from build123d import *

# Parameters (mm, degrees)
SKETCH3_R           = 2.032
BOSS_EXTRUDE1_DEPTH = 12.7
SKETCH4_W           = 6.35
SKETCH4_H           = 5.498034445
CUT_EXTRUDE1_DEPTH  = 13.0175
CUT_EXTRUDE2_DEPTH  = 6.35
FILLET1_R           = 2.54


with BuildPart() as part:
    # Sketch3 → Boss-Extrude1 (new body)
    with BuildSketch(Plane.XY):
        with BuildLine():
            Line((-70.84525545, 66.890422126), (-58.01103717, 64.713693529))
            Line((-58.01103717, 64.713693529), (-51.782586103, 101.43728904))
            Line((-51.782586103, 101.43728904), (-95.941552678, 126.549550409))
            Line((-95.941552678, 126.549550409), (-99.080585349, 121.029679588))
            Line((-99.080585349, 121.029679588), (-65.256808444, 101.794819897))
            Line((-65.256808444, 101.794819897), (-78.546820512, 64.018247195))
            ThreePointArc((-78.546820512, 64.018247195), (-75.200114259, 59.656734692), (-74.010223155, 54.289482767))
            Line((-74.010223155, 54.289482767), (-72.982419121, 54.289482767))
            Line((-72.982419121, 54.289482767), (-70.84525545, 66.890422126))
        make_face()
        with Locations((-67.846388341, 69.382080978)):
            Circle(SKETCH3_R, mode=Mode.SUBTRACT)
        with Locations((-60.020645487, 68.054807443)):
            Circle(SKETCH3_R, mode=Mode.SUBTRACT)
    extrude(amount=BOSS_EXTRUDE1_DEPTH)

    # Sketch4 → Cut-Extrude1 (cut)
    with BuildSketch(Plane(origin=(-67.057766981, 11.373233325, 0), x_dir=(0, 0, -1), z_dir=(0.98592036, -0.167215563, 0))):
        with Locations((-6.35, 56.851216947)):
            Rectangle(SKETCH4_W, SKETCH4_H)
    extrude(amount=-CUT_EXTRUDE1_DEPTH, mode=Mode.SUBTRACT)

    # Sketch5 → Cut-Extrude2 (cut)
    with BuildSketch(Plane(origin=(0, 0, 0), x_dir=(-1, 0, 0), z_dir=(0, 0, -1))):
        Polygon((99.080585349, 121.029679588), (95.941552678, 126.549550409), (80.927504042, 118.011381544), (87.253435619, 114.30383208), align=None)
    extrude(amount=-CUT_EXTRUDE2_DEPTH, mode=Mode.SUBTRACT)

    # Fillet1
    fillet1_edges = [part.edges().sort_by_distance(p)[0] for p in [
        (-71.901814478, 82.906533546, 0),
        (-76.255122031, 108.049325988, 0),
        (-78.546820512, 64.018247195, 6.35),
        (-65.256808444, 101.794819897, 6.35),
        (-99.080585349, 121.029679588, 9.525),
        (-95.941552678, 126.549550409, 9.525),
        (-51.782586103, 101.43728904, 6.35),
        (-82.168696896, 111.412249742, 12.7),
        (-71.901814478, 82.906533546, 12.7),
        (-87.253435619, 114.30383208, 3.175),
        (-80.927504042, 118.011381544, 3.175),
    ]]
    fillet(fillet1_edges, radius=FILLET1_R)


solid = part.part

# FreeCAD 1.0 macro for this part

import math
import FreeCAD as App
import Part
import Sketcher
from FreeCAD import Vector
Q = App.Units.Quantity


def edges_at(feature, points):
    """Names of the edges that pass closest to the given points."""
    edges = feature.Shape.Edges
    near = lambda p: min(range(len(edges)), key=lambda i: edges[i].distToShape(Part.Vertex(*p))[0])
    return sorted({f"Edge{near(p) + 1}" for p in points})


def add_polygon(sketch, points):
    """Adds a closed chain of lines whose ends are joined by coincident constraints."""
    first, n = sketch.GeometryCount, len(points)
    for a, b in zip(points, points[1:] + points[:1]):
        sketch.addGeometry(Part.LineSegment(App.Vector(*a, 0), App.Vector(*b, 0)), False)
    for i in range(n):
        sketch.addConstraint(Sketcher.Constraint("Coincident", first + i, 2, first + (i + 1) % n, 1))

doc = App.newDocument("Part")
params = doc.addObject("Spreadsheet::Sheet", "Params")
for row, (alias, value) in enumerate([
    ("sketch1_radius", "0.5 in"),
    ("sketch1_diameter", "0.16 in"),
    ("sketch1_length", "2 in"),
    ("sketch1_length2", "0.25 in"),
    ("pad1_length", "0.5 in"),
    ("sketch2_width", "0.25 in"),
    ("pocket1_length", "0.5125 in"),
    ("sketch3_length", "0.25 in"),
    ("sketch3_length2", "0.68 in"),
    ("pocket2_length", "0.25 in"),
    ("fillet_radius", "0.1 in"),
], start=1):
    params.set(f"A{row}", alias)
    params.set(f"B{row}", "=" + value)
    params.setAlias(f"B{row}", alias)

body = doc.addObject("PartDesign::Body", "Body")

sketch1 = body.newObject("Sketcher::SketchObject", "Sketch")
sketch1.AttachmentSupport = (doc.getObject("XY_Plane"), [""])
sketch1.MapMode = "FlatFace"
sketch1.addGeometry(Part.LineSegment(Vector(-70.8, 66.9, 0), Vector(-58, 64.7, 0)), False)
sketch1.addGeometry(Part.LineSegment(Vector(-58, 64.7, 0), Vector(-51.8, 101.4, 0)), False)
sketch1.addGeometry(Part.LineSegment(Vector(-51.8, 101.4, 0), Vector(-95.9, 126.5, 0)), False)
sketch1.addGeometry(Part.LineSegment(Vector(-95.9, 126.5, 0), Vector(-99.1, 121, 0)), False)
sketch1.addGeometry(Part.LineSegment(Vector(-99.1, 121, 0), Vector(-65.3, 101.8, 0)), False)
sketch1.addGeometry(Part.LineSegment(Vector(-65.3, 101.8, 0), Vector(-78.5, 64, 0)), False)
sketch1.addGeometry(Part.ArcOfCircle(Part.Circle(Vector(-86.7, 54.3, 0), Vector(0, 0, 1), 12.7), math.radians(0), math.radians(50)), False)
sketch1.addGeometry(Part.LineSegment(Vector(-74, 54.3, 0), Vector(-73, 54.3, 0)), False)
sketch1.addGeometry(Part.LineSegment(Vector(-73, 54.3, 0), Vector(-70.8, 66.9, 0)), False)
sketch1.addGeometry(Part.Circle(Vector(-60, 68.1, 0), Vector(0, 0, 1), 2), False)
sketch1.addGeometry(Part.Circle(Vector(-67.8, 69.4, 0), Vector(0, 0, 1), 2), False)
sketch1.addConstraint(Sketcher.Constraint("Coincident", 0, 2, 1, 1))
sketch1.addConstraint(Sketcher.Constraint("Coincident", 1, 2, 2, 1))
sketch1.addConstraint(Sketcher.Constraint("Coincident", 2, 2, 3, 1))
sketch1.addConstraint(Sketcher.Constraint("Coincident", 3, 2, 4, 1))
sketch1.addConstraint(Sketcher.Constraint("Coincident", 4, 2, 5, 1))
sketch1.addConstraint(Sketcher.Constraint("Coincident", 5, 2, 6, 2))
sketch1.addConstraint(Sketcher.Constraint("Coincident", 6, 1, 7, 1))
sketch1.addConstraint(Sketcher.Constraint("Coincident", 7, 2, 8, 1))
sketch1.addConstraint(Sketcher.Constraint("Coincident", 8, 2, 0, 1))
sketch1.addConstraint(Sketcher.Constraint("Horizontal", 7))
sketch1.addConstraint(Sketcher.Constraint("Equal", 9, 10))
sketch1.addConstraint(Sketcher.Constraint("Perpendicular", 0, 1))
sketch1.addConstraint(Sketcher.Constraint("Perpendicular", 2, 3))
sketch1.addConstraint(Sketcher.Constraint("Perpendicular", 3, 4))
sketch1.addConstraint(Sketcher.Constraint("Parallel", 1, 8))
sketch1.addConstraint(Sketcher.Constraint("Radius", 6, Q("0.5 in")))
sketch1.addConstraint(Sketcher.Constraint("Diameter", 9, Q("0.16 in")))
sketch1.addConstraint(Sketcher.Constraint("Distance", 2, Q("2 in")))
sketch1.addConstraint(Sketcher.Constraint("Distance", 3, Q("0.25 in")))
sketch1.addConstraint(Sketcher.Constraint("Distance", 0, Q("0.5125 in")))
sketch1.addConstraint(Sketcher.Constraint("DistanceX", 10, 3, 9, 3, Q("0.3081001 in")))
sketch1.addConstraint(Sketcher.Constraint("DistanceY", 7, 2, 8, 2, Q("0.4961 in")))
sketch1.addConstraint(Sketcher.Constraint("DistanceY", 6, 3, 10, 3, Q("15.092598 mm")))
sketch1.addConstraint(Sketcher.Constraint("DistanceX", 3, 2, 1, 2, Q("47.297999 mm")))
sketch1.addConstraint(Sketcher.Constraint("DistanceY", 10, 3, 3, 2, Q("51.647599 mm")))
sketch1.addConstraint(Sketcher.Constraint("DistanceY", 6, 1, 10, 3, Q("15.092598 mm")))
sketch1.addConstraint(Sketcher.Constraint("DistanceX", 5, 2, 7, 2, Q("5.564401 mm")))
sketch1.addConstraint(Sketcher.Constraint("Distance", 4, Q("38.910509 mm")))
sketch1.addConstraint(Sketcher.Constraint("Distance", 8, Q("12.78089 mm")))
sketch1.addConstraint(Sketcher.Constraint("DistanceX", 7, 1, 7, 2, Q("1.027804 mm")))
sketch1.addConstraint(Sketcher.Constraint("DistanceX", 10, 3, -1, 1, Q("67.846388 mm")))
sketch1.addConstraint(Sketcher.Constraint("DistanceY", -1, 1, 10, 3, Q("69.382081 mm")))
sketch1.addConstraint(Sketcher.Constraint("DistanceX", 4, 2, -1, 1, Q("65.256808 mm")))
sketch1.addConstraint(Sketcher.Constraint("DistanceY", 9, 3, 1, 2, Q("33.382482 mm")))
sketch1.setExpression("Constraints[15]", "Params.sketch1_radius")
sketch1.setExpression("Constraints[16]", "Params.sketch1_diameter")
sketch1.setExpression("Constraints[17]", "Params.sketch1_length")
sketch1.setExpression("Constraints[18]", "Params.sketch1_length2")
pad1 = body.newObject("PartDesign::Pad", "Pad")
pad1.Profile = sketch1
pad1.setExpression("Length", "Params.pad1_length")

sketch2 = body.newObject("Sketcher::SketchObject", "Sketch001")
sketch2.Placement = App.Placement(Vector(-67.057767, 11.373233, 0), App.Rotation(Vector(0, 0, -1), Vector(0.167215563, 0.98592036, 0), Vector(0.98592036, -0.167215563, 0), "ZXY"))
add_polygon(sketch2, [(-10, 60), (-10, 54), (-3, 54), (-3, 60)])
sketch2.addConstraint(Sketcher.Constraint("Vertical", 0))
sketch2.addConstraint(Sketcher.Constraint("Horizontal", 1))
sketch2.addConstraint(Sketcher.Constraint("Vertical", 2))
sketch2.addConstraint(Sketcher.Constraint("Horizontal", 3))
sketch2.addConstraint(Sketcher.Constraint("DistanceX", 1, 1, 1, 2, Q("0.25 in")))
sketch2.addConstraint(Sketcher.Constraint("DistanceX", 0, 2, -1, 1, Q("0.375 in")))
sketch2.addConstraint(Sketcher.Constraint("DistanceY", -1, 1, 0, 2, Q("54.1022 mm")))
sketch2.addConstraint(Sketcher.Constraint("DistanceY", 0, 2, 0, 1, Q("5.498034 mm")))
sketch2.setExpression("Constraints[8]", "Params.sketch2_width")
pocket1 = body.newObject("PartDesign::Pocket", "Pocket")
pocket1.Profile = sketch2
pocket1.setExpression("Length", "Params.pocket1_length")

sketch3 = body.newObject("Sketcher::SketchObject", "Sketch002")
sketch3.AttachmentSupport = (doc.getObject("XY_Plane"), [""])
sketch3.MapMode = "FlatFace"
add_polygon(sketch3, [(-99, 121), (-96, 127), (-81, 118), (-87, 114)])
sketch3.addConstraint(Sketcher.Constraint("Perpendicular", 0, 1))
sketch3.addConstraint(Sketcher.Constraint("Parallel", 1, 3))
sketch3.addConstraint(Sketcher.Constraint("Distance", 0, Q("0.25 in")))
sketch3.addConstraint(Sketcher.Constraint("Distance", 1, Q("0.68 in")))
sketch3.addConstraint(Sketcher.Constraint("DistanceY", 1, 2, 3, 2, Q("3.018298 mm")))
sketch3.addConstraint(Sketcher.Constraint("Distance", 2, Q("7.332348 mm")))
sketch3.addConstraint(Sketcher.Constraint("DistanceY", -1, 1, 0, 2, Q("126.54955 mm")))
sketch3.addConstraint(Sketcher.Constraint("DistanceX", 0, 2, -1, 1, Q("95.941553 mm")))
sketch3.setExpression("Constraints[6]", "Params.sketch3_length")
sketch3.setExpression("Constraints[7]", "Params.sketch3_length2")
pocket2 = body.newObject("PartDesign::Pocket", "Pocket001")
pocket2.Profile = sketch3
pocket2.setExpression("Length", "Params.pocket2_length")
pocket2.Reversed = True
doc.recompute()

fillet = body.newObject("PartDesign::Fillet", "Fillet")
fillet.Base = (pocket2, edges_at(pocket2, [
    (-71.902, 82.907, 0),
    (-76.255, 108.049, 0),
    (-78.547, 64.018, 6.35),
    (-65.257, 101.795, 6.35),
    (-99.081, 121.03, 9.525),
    (-95.942, 126.55, 9.525),
    (-51.783, 101.437, 6.35),
    (-82.169, 111.412, 12.7),
    (-71.902, 82.907, 12.7),
    (-87.253, 114.304, 3.175),
    (-80.928, 118.011, 3.175),
]))
fillet.setExpression("Radius", "Params.fillet_radius")

doc.recompute()
